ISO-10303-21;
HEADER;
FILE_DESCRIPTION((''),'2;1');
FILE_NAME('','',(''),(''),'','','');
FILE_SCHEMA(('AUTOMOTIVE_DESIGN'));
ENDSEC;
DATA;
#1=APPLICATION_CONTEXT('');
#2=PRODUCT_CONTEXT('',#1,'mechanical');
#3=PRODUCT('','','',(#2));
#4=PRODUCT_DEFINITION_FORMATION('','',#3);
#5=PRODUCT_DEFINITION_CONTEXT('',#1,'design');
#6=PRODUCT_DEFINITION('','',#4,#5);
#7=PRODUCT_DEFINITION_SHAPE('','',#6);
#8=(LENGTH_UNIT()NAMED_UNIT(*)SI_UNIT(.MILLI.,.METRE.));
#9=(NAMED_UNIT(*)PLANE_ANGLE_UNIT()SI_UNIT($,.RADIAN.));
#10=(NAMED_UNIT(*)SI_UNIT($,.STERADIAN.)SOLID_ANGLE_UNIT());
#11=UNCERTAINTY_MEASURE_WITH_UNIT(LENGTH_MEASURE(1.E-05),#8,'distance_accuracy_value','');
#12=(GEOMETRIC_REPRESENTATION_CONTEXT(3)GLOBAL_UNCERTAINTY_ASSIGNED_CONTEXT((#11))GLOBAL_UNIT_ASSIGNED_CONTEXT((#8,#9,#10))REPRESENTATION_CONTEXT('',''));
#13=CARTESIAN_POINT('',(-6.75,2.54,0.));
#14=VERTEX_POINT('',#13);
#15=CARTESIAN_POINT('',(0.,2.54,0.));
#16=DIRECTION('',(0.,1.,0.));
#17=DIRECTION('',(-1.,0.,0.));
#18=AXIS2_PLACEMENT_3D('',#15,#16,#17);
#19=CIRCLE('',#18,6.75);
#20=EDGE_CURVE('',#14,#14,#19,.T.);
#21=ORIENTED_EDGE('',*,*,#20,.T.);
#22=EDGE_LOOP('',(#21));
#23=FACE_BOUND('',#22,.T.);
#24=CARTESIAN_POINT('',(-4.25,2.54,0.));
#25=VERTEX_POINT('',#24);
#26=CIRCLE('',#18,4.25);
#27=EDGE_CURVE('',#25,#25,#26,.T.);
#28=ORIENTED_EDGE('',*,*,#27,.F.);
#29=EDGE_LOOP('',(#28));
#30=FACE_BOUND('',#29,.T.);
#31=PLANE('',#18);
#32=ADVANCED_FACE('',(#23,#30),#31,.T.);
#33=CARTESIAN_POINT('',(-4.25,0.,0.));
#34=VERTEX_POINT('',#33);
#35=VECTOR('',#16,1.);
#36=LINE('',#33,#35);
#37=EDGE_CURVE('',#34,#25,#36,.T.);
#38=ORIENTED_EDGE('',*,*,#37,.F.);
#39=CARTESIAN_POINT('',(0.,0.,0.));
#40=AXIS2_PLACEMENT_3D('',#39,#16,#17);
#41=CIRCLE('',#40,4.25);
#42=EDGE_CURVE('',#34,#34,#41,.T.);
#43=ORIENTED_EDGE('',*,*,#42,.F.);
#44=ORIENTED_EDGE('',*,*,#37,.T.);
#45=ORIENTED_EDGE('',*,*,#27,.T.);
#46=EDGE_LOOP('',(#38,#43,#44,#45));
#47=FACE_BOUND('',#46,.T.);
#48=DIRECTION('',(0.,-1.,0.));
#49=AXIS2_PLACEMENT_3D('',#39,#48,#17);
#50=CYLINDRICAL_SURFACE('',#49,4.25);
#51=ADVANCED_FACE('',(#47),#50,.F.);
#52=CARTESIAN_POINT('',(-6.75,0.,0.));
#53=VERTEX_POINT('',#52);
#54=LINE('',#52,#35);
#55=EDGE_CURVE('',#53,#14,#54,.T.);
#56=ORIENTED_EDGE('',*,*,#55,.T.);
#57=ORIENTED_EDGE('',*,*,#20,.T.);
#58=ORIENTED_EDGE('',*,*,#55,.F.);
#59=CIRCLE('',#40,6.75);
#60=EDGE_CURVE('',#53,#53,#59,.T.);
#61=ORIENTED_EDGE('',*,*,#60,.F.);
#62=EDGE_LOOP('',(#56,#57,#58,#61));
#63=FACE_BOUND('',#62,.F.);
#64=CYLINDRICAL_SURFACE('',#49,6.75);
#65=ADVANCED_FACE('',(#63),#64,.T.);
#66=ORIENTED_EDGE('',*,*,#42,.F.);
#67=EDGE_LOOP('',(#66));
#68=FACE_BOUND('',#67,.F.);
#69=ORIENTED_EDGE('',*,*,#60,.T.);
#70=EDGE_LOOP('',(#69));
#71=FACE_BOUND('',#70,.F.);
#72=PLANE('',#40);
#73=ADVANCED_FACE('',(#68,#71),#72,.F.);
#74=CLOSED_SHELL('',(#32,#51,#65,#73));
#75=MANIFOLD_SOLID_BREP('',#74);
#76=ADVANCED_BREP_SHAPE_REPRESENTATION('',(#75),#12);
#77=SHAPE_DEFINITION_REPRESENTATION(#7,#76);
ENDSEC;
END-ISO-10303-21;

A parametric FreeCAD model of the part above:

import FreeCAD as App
import Part
import Sketcher

V = App.Vector
Q = App.Units.Quantity

doc = App.newDocument("Part")
params = doc.addObject("Spreadsheet::Sheet", "Params")
for row, (alias, value) in enumerate([
    ("sketch1_diameter", "13.5 mm"),
    ("sketch1_diameter2", "8.5 mm"),
    ("pad1_length", "2.54 mm"),
], start=1):
    params.set(f"A{row}", alias)
    params.set(f"B{row}", "=" + value)
    params.setAlias(f"B{row}", alias)

body = doc.addObject("PartDesign::Body", "Body")

sketch1 = body.newObject("Sketcher::SketchObject", "Sketch")
sketch1.AttachmentSupport = (doc.getObject("XZ_Plane"), [""])
sketch1.MapMode = "FlatFace"
sketch1.addGeometry([
    Part.Circle(V(0, 0, 0), V(0, 0, 1), 6.75),
    Part.Circle(V(0, 0, 0), V(0, 0, 1), 4.25),
], False)
sketch1.addConstraint([
    Sketcher.Constraint("Coincident", 0, 3, -1, 1),
    Sketcher.Constraint("Coincident", 1, 3, -1, 1),
    Sketcher.Constraint("Diameter", 0, Q("13.5 mm")),
    Sketcher.Constraint("Diameter", 1, Q("8.5 mm")),
])
sketch1.setExpression("Constraints[2]", "Params.sketch1_diameter")
sketch1.setExpression("Constraints[3]", "Params.sketch1_diameter2")
pad1 = body.newObject("PartDesign::Pad", "Pad")
pad1.Profile = sketch1
pad1.setExpression("Length", "Params.pad1_length")
pad1.Reversed = True

doc.recompute()
